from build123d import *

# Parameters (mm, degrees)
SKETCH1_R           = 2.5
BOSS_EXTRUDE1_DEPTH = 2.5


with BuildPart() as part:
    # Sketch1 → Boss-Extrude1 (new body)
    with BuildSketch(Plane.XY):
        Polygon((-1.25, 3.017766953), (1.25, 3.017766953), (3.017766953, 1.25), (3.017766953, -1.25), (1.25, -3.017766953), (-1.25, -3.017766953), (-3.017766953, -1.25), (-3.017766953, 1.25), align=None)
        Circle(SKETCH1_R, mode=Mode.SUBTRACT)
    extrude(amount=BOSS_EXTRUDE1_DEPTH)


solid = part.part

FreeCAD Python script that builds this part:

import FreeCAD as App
import Part
import Sketcher
from FreeCAD import Vector

doc = App.newDocument("Part")
body = doc.addObject("PartDesign::Body", "Body")

sketch1 = body.newObject("Sketcher::SketchObject", "Sketch")
sketch1.AttachmentSupport = (doc.getObject("XY_Plane"), [""])
sketch1.MapMode = "FlatFace"
sketch1.addGeometry(Part.LineSegment(Vector(1.2, 3, 0), Vector(-1.2, 3, 0)), False)
sketch1.addGeometry(Part.LineSegment(Vector(-1.2, 3, 0), Vector(-3, 1.2, 0)), False)
sketch1.addGeometry(Part.LineSegment(Vector(-3, 1.2, 0), Vector(-3, -1.2, 0)), False)
sketch1.addGeometry(Part.LineSegment(Vector(-3, -1.2, 0), Vector(-1.2, -3, 0)), False)
sketch1.addGeometry(Part.LineSegment(Vector(-1.2, -3, 0), Vector(1.2, -3, 0)), False)
sketch1.addGeometry(Part.LineSegment(Vector(1.2, -3, 0), Vector(3, -1.2, 0)), False)
sketch1.addGeometry(Part.LineSegment(Vector(3, -1.2, 0), Vector(3, 1.2, 0)), False)
sketch1.addGeometry(Part.LineSegment(Vector(3, 1.2, 0), Vector(1.2, 3, 0)), False)
sketch1.addGeometry(Part.Circle(Vector(0, 0, 0), Vector(0, 0, 1), 2.5), False)
sketch1.addConstraint(Sketcher.Constraint("Coincident", 0, 2, 1, 1))
sketch1.addConstraint(Sketcher.Constraint("Coincident", 1, 2, 2, 1))
sketch1.addConstraint(Sketcher.Constraint("Coincident", 2, 2, 3, 1))
sketch1.addConstraint(Sketcher.Constraint("Coincident", 3, 2, 4, 1))
sketch1.addConstraint(Sketcher.Constraint("Coincident", 4, 2, 5, 1))
sketch1.addConstraint(Sketcher.Constraint("Coincident", 5, 2, 6, 1))
sketch1.addConstraint(Sketcher.Constraint("Coincident", 6, 2, 7, 1))
sketch1.addConstraint(Sketcher.Constraint("Coincident", 7, 2, 0, 1))
sketch1.addConstraint(Sketcher.Constraint("Horizontal", 0))
sketch1.addConstraint(Sketcher.Constraint("Vertical", 2))
sketch1.addConstraint(Sketcher.Constraint("Horizontal", 4))
sketch1.addConstraint(Sketcher.Constraint("Vertical", 6))
sketch1.addConstraint(Sketcher.Constraint("Coincident", 8, 3, -1, 1))
sketch1.addConstraint(Sketcher.Constraint("Symmetric", 0, 2, 4, 2, -1, 1))
sketch1.addConstraint(Sketcher.Constraint("Symmetric", 1, 2, 5, 2, -1, 1))
sketch1.addConstraint(Sketcher.Constraint("Perpendicular", 1, 3))
sketch1.addConstraint(Sketcher.Constraint("Perpendicular", 5, 7))
sketch1.addConstraint(Sketcher.Constraint("Horizontal", 2, 2, 5, 2))
sketch1.addConstraint(Sketcher.Constraint("Horizontal", 1, 2, 6, 2))
sketch1.addConstraint(Sketcher.Constraint("Vertical", 0, 2, 3, 2))
sketch1.addConstraint(Sketcher.Constraint("Equal", 4, 2))
sketch1.addConstraint(Sketcher.Constraint("Diameter", 8, 5.0))
sketch1.addConstraint(Sketcher.Constraint("DistanceX", 0, 2, 0, 1, 2.5))
sketch1.addConstraint(Sketcher.Constraint("Distance", 1, 2.5))
pad1 = body.newObject("PartDesign::Pad", "Pad")
pad1.Profile = sketch1
pad1.Length = 2.5

doc.recompute()
